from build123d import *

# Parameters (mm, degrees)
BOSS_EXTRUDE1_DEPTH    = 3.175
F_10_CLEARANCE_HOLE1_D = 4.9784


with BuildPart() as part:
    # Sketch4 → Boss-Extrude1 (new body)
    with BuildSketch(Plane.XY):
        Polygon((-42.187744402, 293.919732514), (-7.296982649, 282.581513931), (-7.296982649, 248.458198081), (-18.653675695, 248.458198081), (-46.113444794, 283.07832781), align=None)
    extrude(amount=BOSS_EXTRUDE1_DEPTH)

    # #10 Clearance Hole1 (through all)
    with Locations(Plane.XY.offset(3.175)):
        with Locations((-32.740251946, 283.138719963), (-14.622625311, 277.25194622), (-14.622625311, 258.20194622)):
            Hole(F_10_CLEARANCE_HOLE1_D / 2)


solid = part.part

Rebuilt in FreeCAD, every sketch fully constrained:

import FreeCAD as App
import Part
import Sketcher
from FreeCAD import Vector
Q = App.Units.Quantity


def add_polygon(sketch, points):
    """Adds a closed chain of lines whose ends are joined by coincident constraints."""
    first, n = sketch.GeometryCount, len(points)
    for a, b in zip(points, points[1:] + points[:1]):
        sketch.addGeometry(Part.LineSegment(App.Vector(*a, 0), App.Vector(*b, 0)), False)
    for i in range(n):
        sketch.addConstraint(Sketcher.Constraint("Coincident", first + i, 2, first + (i + 1) % n, 1))

doc = App.newDocument("Part")
body = doc.addObject("PartDesign::Body", "Body")

sketch1 = body.newObject("Sketcher::SketchObject", "Sketch")
sketch1.AttachmentSupport = (doc.getObject("XY_Plane"), [""])
sketch1.MapMode = "FlatFace"
add_polygon(sketch1, [(-7.296983, 282.581514), (-42.187744, 293.919733), (-46.113445, 283.078328), (-18.653676, 248.458198), (-7.296983, 248.458198)])
sketch1.addConstraint([
    Sketcher.Constraint("Horizontal", 3),
    Sketcher.Constraint("Vertical", 4),
    Sketcher.Constraint("DistanceY", -1, 1, 2, 2, Q("248.458198 mm")),
    Sketcher.Constraint("DistanceX", 1, 2, 0, 2, Q("3.9257 mm")),
    Sketcher.Constraint("Distance", 0, Q("36.686789 mm")),
    Sketcher.Constraint("DistanceX", 3, 1, 3, 2, Q("11.356693 mm")),
    Sketcher.Constraint("DistanceY", 4, 1, 4, 2, Q("34.123316 mm")),
    Sketcher.Constraint("DistanceX", 1, 2, 2, 2, Q("27.459769 mm")),
    Sketcher.Constraint("DistanceY", 2, 2, 1, 2, Q("34.62013 mm")),
    Sketcher.Constraint("DistanceX", 0, 2, -1, 1, Q("42.187744 mm")),
])
pad1 = body.newObject("PartDesign::Pad", "Pad")
pad1.Profile = sketch1
pad1.Length = Q("0.125 in")

sketch2 = body.newObject("Sketcher::SketchObject", "Sketch001")
sketch2.AttachmentSupport = (doc.getObject("XY_Plane"), [""])
sketch2.MapMode = "FlatFace"
sketch2.AttachmentOffset = App.Placement(Vector(0, 0, 0.125 * 25.4), App.Rotation())
sketch2.addGeometry([
    Part.Circle(Vector(-32.740252, 283.13872, 0), Vector(0, 0, 1), 2.4892),
    Part.Circle(Vector(-14.622625, 277.251946, 0), Vector(0, 0, 1), 2.4892),
    Part.Circle(Vector(-14.622625, 258.201946, 0), Vector(0, 0, 1), 2.4892),
], False)
sketch2.addConstraint([
    Sketcher.Constraint("Equal", 0, 1),
    Sketcher.Constraint("Equal", 1, 2),
    Sketcher.Constraint("Vertical", 1, 3, 2, 3),
    Sketcher.Constraint("Diameter", 0, Q("0.196 in")),
    Sketcher.Constraint("DistanceY", 2, 3, 1, 3, Q("0.75 in")),
    Sketcher.Constraint("DistanceX", 0, 3, -1, 1, Q("32.740252 mm")),
    Sketcher.Constraint("DistanceY", -1, 1, 0, 3, Q("283.13872 mm")),
    Sketcher.Constraint("DistanceX", 1, 3, -1, 1, Q("14.622625 mm")),
    Sketcher.Constraint("DistanceY", -1, 1, 1, 3, Q("277.251946 mm")),
])
doc.recompute()
hole = body.newObject("PartDesign::Hole", "Hole")
hole.Profile = sketch2
hole.ThreadType = "None"
hole.Diameter = Q("0.196 in")
hole.DepthType = "ThroughAll"

doc.recompute()
